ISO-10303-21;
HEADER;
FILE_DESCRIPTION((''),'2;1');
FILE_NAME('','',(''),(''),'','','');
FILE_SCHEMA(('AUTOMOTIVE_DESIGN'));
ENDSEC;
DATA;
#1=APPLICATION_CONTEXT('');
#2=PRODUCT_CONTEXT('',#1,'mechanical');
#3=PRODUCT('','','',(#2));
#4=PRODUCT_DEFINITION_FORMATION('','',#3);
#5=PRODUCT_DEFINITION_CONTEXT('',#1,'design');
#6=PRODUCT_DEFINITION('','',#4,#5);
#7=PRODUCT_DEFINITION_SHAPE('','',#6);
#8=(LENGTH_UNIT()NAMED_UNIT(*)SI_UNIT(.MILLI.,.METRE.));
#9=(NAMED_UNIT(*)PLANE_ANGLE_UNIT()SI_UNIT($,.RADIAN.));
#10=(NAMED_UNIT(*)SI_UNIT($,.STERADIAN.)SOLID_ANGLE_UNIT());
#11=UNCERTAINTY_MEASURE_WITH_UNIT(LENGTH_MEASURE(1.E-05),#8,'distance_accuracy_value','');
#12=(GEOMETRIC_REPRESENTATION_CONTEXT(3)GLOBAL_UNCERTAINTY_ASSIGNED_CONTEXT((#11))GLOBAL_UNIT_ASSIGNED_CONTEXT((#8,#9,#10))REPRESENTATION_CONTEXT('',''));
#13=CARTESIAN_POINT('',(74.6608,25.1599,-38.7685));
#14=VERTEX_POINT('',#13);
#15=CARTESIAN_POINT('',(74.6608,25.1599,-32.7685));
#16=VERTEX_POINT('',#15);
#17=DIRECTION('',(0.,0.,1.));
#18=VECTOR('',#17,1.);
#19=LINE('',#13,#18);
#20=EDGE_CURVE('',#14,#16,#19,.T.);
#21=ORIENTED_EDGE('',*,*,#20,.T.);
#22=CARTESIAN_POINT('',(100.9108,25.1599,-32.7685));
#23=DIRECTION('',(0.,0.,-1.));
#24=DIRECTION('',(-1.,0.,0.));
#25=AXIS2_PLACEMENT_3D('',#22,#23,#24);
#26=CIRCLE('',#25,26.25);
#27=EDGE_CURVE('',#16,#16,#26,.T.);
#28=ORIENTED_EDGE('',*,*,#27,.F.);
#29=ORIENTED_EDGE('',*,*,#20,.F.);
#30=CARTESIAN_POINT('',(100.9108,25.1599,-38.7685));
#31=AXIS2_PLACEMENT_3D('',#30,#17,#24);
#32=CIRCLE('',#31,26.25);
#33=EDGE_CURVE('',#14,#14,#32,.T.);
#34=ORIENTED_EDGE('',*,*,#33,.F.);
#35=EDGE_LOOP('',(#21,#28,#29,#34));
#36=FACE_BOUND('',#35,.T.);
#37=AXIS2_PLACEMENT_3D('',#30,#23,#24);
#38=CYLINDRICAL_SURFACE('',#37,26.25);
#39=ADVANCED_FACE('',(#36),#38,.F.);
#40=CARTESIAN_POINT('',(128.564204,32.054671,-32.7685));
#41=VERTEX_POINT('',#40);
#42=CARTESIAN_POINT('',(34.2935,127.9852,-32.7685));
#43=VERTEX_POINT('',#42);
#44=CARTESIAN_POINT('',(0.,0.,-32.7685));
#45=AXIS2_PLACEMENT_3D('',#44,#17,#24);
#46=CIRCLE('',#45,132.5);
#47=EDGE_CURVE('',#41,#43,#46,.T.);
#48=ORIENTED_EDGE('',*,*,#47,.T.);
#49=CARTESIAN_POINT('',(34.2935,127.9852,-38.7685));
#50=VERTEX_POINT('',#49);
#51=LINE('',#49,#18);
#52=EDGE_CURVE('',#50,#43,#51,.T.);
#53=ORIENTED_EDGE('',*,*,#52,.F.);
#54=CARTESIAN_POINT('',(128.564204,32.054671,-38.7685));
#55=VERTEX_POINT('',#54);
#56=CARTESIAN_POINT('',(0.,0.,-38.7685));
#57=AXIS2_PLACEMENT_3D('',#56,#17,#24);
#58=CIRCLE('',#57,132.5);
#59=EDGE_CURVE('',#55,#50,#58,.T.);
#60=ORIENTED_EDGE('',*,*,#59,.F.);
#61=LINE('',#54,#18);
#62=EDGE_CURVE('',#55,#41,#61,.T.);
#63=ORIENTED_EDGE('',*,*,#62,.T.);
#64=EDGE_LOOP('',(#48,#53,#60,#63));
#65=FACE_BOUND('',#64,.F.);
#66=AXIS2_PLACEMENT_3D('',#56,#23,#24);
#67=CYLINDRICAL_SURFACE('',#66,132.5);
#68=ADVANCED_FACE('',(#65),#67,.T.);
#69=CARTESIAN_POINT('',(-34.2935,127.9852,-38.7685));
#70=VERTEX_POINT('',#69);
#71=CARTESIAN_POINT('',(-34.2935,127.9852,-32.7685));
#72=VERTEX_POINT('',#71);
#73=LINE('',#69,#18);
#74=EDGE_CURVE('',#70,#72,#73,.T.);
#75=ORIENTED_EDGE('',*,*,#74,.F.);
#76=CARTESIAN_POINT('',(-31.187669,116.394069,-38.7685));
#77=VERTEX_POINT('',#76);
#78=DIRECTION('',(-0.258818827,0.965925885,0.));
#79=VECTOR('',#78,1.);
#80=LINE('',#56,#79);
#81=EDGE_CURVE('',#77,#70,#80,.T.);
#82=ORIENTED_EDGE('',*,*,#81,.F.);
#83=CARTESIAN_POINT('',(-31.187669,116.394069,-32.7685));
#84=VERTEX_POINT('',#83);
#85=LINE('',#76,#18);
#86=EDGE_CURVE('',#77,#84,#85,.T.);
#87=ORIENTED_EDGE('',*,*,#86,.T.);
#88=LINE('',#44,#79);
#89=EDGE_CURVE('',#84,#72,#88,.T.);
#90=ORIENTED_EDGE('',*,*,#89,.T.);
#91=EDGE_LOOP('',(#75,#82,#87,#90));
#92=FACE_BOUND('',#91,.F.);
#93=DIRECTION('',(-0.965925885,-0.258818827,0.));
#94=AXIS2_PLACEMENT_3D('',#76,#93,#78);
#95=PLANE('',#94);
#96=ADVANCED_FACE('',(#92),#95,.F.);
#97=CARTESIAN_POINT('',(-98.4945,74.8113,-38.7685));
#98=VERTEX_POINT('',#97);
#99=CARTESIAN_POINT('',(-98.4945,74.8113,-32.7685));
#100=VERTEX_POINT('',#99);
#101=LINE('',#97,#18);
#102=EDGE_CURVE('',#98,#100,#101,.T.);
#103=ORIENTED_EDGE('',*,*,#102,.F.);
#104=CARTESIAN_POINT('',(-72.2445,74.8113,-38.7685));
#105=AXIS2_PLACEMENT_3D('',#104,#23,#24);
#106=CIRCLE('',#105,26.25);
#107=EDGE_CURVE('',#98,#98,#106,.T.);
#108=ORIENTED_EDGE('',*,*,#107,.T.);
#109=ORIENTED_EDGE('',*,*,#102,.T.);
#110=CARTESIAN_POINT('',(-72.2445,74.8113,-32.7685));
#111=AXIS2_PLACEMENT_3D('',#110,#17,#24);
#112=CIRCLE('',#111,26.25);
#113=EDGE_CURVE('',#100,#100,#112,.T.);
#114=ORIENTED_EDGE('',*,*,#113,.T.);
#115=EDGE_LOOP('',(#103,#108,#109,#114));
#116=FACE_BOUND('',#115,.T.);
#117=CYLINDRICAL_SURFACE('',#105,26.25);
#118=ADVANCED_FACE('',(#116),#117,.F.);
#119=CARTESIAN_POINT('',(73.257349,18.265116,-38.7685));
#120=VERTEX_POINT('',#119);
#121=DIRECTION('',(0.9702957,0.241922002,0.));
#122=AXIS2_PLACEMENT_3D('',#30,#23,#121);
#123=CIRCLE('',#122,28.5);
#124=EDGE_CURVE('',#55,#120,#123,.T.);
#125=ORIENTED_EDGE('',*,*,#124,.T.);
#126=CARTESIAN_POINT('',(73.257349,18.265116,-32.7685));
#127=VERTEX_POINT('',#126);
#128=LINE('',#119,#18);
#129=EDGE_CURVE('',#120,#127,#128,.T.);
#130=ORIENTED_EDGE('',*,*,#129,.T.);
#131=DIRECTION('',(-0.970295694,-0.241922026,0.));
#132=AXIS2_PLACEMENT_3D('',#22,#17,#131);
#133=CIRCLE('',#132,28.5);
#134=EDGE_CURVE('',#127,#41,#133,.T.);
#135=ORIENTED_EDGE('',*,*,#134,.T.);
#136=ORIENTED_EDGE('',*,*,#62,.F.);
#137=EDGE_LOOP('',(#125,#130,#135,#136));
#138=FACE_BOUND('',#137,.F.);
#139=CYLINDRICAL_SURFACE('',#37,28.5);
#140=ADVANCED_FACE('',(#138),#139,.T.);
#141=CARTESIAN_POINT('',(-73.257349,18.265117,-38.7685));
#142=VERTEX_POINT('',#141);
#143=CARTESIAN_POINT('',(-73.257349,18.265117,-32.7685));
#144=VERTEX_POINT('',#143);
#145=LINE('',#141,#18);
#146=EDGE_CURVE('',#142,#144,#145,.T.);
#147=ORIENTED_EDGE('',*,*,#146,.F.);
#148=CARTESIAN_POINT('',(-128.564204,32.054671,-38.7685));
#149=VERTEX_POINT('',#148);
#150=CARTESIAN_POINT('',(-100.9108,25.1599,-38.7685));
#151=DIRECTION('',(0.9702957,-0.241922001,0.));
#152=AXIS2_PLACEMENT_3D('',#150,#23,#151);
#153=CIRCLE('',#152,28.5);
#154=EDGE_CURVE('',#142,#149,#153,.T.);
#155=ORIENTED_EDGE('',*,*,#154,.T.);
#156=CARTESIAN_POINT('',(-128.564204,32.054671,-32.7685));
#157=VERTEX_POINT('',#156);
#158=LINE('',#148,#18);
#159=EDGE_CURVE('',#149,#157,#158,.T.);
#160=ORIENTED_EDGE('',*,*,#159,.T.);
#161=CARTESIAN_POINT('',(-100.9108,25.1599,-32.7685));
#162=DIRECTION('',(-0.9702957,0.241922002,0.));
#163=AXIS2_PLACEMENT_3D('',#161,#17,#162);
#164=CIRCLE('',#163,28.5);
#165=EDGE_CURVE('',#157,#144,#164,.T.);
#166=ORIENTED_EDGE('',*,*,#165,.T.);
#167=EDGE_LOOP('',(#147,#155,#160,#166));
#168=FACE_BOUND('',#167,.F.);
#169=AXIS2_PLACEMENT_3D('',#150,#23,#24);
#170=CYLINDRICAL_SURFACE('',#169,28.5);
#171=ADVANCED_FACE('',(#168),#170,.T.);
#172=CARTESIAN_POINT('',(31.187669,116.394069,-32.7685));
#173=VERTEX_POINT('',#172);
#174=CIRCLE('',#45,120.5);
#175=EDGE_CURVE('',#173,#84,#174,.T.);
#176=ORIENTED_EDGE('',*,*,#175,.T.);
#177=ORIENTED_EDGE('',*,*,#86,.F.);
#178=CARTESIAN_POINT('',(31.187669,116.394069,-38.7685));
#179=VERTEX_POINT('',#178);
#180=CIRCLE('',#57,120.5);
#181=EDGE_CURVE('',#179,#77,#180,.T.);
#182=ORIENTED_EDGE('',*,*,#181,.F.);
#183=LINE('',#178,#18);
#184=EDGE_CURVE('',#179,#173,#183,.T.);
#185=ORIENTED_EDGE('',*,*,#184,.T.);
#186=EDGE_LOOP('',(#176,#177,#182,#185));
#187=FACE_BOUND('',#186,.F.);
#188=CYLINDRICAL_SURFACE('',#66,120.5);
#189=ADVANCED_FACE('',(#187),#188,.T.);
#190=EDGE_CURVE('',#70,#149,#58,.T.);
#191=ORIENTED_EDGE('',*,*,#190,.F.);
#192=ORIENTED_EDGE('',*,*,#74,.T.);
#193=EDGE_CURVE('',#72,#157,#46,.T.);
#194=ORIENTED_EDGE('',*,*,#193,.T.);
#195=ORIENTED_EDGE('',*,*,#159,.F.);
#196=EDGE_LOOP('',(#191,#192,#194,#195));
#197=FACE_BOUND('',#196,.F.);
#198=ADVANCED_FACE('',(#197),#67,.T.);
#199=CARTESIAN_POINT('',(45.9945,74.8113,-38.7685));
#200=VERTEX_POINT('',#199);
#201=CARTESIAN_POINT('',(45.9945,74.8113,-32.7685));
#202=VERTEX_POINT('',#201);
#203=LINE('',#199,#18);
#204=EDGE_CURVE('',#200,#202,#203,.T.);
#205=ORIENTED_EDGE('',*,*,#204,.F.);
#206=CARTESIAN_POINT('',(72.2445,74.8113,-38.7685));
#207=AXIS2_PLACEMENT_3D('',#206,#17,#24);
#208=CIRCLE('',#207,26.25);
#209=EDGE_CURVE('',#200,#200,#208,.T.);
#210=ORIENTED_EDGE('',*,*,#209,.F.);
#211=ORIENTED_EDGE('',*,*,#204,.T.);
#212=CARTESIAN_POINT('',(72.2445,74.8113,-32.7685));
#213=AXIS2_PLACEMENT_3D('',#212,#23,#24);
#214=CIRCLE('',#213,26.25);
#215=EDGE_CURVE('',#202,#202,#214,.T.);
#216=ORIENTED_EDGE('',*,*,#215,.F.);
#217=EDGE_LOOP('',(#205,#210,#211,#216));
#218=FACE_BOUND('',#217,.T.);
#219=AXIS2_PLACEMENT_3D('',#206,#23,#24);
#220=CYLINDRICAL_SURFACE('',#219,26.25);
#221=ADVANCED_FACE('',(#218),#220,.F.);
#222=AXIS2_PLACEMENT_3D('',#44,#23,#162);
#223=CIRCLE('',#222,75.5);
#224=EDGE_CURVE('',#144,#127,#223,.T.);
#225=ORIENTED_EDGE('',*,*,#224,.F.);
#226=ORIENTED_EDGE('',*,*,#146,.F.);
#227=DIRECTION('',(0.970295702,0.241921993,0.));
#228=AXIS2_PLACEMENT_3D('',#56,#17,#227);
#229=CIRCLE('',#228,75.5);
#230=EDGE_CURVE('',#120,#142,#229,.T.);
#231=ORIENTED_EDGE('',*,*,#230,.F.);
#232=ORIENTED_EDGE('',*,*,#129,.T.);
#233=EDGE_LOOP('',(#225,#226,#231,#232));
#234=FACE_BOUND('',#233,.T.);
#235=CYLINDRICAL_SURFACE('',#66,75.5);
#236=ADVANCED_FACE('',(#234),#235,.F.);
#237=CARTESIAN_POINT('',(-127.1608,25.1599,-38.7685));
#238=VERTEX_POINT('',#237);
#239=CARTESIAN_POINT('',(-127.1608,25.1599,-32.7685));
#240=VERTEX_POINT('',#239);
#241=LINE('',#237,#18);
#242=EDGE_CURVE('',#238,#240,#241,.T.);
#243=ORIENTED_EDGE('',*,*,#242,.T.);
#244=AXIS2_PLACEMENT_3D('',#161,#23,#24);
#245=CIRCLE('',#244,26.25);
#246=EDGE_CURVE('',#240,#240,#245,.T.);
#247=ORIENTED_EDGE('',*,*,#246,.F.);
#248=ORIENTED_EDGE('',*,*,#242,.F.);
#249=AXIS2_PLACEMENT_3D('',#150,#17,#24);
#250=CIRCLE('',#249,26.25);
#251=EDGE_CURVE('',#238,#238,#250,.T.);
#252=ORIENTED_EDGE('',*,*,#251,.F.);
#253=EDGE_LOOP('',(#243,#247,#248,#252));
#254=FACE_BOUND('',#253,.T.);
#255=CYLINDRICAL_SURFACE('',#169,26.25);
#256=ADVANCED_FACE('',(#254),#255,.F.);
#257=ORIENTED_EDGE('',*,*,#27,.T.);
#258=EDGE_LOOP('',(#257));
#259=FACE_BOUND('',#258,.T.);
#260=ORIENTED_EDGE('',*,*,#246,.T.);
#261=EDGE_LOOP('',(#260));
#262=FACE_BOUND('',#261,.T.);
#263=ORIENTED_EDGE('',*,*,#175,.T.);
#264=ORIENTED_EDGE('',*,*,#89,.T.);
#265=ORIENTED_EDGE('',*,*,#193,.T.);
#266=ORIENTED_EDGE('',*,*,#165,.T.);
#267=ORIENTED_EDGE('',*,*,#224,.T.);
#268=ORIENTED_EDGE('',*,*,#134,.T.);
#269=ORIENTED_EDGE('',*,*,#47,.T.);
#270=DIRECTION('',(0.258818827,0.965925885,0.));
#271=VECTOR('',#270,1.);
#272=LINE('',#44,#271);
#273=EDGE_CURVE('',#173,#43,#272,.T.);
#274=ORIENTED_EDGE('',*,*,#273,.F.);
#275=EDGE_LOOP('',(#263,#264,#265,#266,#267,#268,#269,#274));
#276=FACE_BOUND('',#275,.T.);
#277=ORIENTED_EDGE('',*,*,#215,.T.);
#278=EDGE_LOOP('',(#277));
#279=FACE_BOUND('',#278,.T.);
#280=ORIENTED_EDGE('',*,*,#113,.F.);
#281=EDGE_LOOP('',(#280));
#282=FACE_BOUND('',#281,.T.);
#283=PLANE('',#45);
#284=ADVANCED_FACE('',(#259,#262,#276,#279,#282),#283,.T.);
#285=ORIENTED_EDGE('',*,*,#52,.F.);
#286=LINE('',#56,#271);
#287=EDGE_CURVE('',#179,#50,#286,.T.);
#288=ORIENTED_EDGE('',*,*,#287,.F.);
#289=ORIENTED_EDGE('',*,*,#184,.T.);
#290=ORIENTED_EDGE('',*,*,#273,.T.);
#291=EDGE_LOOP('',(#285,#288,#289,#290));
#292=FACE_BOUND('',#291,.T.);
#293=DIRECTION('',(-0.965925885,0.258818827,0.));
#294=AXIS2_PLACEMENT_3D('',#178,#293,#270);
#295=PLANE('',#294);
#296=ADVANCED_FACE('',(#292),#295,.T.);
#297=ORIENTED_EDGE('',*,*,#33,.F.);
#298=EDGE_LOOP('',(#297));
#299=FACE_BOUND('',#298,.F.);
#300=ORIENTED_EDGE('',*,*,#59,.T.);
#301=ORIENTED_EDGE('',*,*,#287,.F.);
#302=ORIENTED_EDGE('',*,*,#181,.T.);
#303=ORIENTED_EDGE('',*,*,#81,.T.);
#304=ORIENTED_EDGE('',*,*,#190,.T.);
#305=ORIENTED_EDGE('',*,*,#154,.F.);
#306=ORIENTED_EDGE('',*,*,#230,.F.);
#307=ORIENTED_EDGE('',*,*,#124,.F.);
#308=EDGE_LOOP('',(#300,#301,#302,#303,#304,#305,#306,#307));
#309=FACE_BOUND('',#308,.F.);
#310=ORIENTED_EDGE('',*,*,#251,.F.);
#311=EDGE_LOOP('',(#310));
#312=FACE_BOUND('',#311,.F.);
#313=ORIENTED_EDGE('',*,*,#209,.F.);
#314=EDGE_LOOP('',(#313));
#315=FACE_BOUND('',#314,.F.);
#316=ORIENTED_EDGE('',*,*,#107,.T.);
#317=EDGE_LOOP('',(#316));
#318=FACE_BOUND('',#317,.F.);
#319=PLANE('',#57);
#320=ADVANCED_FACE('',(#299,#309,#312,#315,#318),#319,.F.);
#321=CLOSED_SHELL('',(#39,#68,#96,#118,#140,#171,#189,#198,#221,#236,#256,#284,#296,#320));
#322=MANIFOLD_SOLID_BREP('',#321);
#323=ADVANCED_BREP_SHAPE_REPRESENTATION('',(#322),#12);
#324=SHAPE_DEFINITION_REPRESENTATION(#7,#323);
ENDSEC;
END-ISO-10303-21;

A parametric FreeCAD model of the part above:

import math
import FreeCAD as App
import Part
import Sketcher

V = App.Vector
Q = App.Units.Quantity

doc = App.newDocument("Part")
body = doc.addObject("PartDesign::Body", "Body")

# Sketch on XY plane
sketch1 = body.newObject("Sketcher::SketchObject", "Sketch")
sketch1.AttachmentSupport = (doc.getObject("XY_Plane"), [""])
sketch1.MapMode = "FlatFace"
sketch1.AttachmentOffset = App.Placement(V(0, 0, -38.7685), App.Rotation())
sketch1.addGeometry([
    Part.ArcOfCircle(Part.Circle(V(0, 0, 0), V(0, 0, 1), 132.5), math.radians(104.999987), math.radians(165.999994)),  # 0
    Part.ArcOfCircle(Part.Circle(V(-100.9108, 25.1599, 0), V(0, 0, 1), 28.5), math.radians(165.999994), math.radians(345.999994)),  # 1
    Part.ArcOfCircle(Part.Circle(V(0, 0, 0), V(0, 0, 1), 75.5), math.radians(14.000006), math.radians(165.999994)),  # 2
    Part.ArcOfCircle(Part.Circle(V(100.9108, 25.1599, 0), V(0, 0, 1), 28.5), math.radians(-165.999992), math.radians(14.000006)),  # 3
    Part.ArcOfCircle(Part.Circle(V(0, 0, 0), V(0, 0, 1), 132.5), math.radians(14.000006), math.radians(75.000013)),  # 4
    Part.LineSegment(V(34.2935, 127.9852, 0), V(31.187669, 116.394069, 0)),  # 5
    Part.ArcOfCircle(Part.Circle(V(0, 0, 0), V(0, 0, 1), 120.5), math.radians(75.000013), math.radians(104.999987)),  # 6
    Part.LineSegment(V(-31.187669, 116.394069, 0), V(-34.2935, 127.9852, 0)),  # 7
    Part.Circle(V(-72.2445, 74.8113, 0), V(0, 0, 1), 26.25),  # 8
    Part.Circle(V(-100.9108, 25.1599, 0), V(0, 0, 1), 26.25),  # 9
    Part.Circle(V(72.2445, 74.8113, 0), V(0, 0, 1), 26.25),  # 10
    Part.Circle(V(100.9108, 25.1599, 0), V(0, 0, 1), 26.25),  # 11
], False)
sketch1.addConstraint([
    Sketcher.Constraint("Tangent", 0, 2, 1, 1),
    Sketcher.Constraint("Tangent", 1, 2, 2, 2),
    Sketcher.Constraint("Tangent", 2, 1, 3, 1),
    Sketcher.Constraint("Tangent", 3, 2, 4, 1),
    Sketcher.Constraint("Coincident", 4, 2, 5, 1),
    Sketcher.Constraint("Coincident", 5, 2, 6, 1),
    Sketcher.Constraint("Coincident", 6, 2, 7, 1),
    Sketcher.Constraint("Coincident", 7, 2, 0, 1),
    Sketcher.Constraint("Coincident", 0, 3, -1, 1),
    Sketcher.Constraint("Coincident", 2, 3, -1, 1),
    Sketcher.Constraint("Coincident", 4, 3, -1, 1),
    Sketcher.Constraint("Coincident", 6, 3, -1, 1),
    Sketcher.Constraint("Coincident", 9, 3, 1, 3),
    Sketcher.Constraint("Coincident", 11, 3, 3, 3),
    Sketcher.Constraint("Equal", 1, 3),
    Sketcher.Constraint("Equal", 8, 9),
    Sketcher.Constraint("Equal", 9, 10),
    Sketcher.Constraint("Equal", 10, 11),
    Sketcher.Constraint("Symmetric", 8, 3, 10, 3, -2),
    Sketcher.Constraint("Horizontal", 1, 3, 3, 3),
    Sketcher.Constraint("Horizontal", 5, 2, 6, 2),
    Sketcher.Constraint("Horizontal", 4, 2, 7, 2),
    Sketcher.Constraint("Diameter", 8, Q("52.5 mm")),
    Sketcher.Constraint("Radius", 2, Q("75.5 mm")),
    Sketcher.Constraint("Distance", 5, Q("12 mm")),
    Sketcher.Constraint("Radius", 0, Q("132.5 mm")),
    Sketcher.Constraint("Angle", 5, Q("-105 deg")),
    Sketcher.Constraint("DistanceY", -1, 1, 1, 3, Q("25.16 mm")),
    Sketcher.Constraint("DistanceY", 1, 2, 7, 2, Q("109.72 mm")),
    Sketcher.Constraint("DistanceX", 4, 2, 10, 3, Q("37.951 mm")),
    Sketcher.Constraint("DistanceY", 8, 3, 7, 2, Q("53.174 mm")),
])
pad1 = body.newObject("PartDesign::Pad", "Pad")
pad1.Profile = sketch1
pad1.Length = 6

doc.recompute()
